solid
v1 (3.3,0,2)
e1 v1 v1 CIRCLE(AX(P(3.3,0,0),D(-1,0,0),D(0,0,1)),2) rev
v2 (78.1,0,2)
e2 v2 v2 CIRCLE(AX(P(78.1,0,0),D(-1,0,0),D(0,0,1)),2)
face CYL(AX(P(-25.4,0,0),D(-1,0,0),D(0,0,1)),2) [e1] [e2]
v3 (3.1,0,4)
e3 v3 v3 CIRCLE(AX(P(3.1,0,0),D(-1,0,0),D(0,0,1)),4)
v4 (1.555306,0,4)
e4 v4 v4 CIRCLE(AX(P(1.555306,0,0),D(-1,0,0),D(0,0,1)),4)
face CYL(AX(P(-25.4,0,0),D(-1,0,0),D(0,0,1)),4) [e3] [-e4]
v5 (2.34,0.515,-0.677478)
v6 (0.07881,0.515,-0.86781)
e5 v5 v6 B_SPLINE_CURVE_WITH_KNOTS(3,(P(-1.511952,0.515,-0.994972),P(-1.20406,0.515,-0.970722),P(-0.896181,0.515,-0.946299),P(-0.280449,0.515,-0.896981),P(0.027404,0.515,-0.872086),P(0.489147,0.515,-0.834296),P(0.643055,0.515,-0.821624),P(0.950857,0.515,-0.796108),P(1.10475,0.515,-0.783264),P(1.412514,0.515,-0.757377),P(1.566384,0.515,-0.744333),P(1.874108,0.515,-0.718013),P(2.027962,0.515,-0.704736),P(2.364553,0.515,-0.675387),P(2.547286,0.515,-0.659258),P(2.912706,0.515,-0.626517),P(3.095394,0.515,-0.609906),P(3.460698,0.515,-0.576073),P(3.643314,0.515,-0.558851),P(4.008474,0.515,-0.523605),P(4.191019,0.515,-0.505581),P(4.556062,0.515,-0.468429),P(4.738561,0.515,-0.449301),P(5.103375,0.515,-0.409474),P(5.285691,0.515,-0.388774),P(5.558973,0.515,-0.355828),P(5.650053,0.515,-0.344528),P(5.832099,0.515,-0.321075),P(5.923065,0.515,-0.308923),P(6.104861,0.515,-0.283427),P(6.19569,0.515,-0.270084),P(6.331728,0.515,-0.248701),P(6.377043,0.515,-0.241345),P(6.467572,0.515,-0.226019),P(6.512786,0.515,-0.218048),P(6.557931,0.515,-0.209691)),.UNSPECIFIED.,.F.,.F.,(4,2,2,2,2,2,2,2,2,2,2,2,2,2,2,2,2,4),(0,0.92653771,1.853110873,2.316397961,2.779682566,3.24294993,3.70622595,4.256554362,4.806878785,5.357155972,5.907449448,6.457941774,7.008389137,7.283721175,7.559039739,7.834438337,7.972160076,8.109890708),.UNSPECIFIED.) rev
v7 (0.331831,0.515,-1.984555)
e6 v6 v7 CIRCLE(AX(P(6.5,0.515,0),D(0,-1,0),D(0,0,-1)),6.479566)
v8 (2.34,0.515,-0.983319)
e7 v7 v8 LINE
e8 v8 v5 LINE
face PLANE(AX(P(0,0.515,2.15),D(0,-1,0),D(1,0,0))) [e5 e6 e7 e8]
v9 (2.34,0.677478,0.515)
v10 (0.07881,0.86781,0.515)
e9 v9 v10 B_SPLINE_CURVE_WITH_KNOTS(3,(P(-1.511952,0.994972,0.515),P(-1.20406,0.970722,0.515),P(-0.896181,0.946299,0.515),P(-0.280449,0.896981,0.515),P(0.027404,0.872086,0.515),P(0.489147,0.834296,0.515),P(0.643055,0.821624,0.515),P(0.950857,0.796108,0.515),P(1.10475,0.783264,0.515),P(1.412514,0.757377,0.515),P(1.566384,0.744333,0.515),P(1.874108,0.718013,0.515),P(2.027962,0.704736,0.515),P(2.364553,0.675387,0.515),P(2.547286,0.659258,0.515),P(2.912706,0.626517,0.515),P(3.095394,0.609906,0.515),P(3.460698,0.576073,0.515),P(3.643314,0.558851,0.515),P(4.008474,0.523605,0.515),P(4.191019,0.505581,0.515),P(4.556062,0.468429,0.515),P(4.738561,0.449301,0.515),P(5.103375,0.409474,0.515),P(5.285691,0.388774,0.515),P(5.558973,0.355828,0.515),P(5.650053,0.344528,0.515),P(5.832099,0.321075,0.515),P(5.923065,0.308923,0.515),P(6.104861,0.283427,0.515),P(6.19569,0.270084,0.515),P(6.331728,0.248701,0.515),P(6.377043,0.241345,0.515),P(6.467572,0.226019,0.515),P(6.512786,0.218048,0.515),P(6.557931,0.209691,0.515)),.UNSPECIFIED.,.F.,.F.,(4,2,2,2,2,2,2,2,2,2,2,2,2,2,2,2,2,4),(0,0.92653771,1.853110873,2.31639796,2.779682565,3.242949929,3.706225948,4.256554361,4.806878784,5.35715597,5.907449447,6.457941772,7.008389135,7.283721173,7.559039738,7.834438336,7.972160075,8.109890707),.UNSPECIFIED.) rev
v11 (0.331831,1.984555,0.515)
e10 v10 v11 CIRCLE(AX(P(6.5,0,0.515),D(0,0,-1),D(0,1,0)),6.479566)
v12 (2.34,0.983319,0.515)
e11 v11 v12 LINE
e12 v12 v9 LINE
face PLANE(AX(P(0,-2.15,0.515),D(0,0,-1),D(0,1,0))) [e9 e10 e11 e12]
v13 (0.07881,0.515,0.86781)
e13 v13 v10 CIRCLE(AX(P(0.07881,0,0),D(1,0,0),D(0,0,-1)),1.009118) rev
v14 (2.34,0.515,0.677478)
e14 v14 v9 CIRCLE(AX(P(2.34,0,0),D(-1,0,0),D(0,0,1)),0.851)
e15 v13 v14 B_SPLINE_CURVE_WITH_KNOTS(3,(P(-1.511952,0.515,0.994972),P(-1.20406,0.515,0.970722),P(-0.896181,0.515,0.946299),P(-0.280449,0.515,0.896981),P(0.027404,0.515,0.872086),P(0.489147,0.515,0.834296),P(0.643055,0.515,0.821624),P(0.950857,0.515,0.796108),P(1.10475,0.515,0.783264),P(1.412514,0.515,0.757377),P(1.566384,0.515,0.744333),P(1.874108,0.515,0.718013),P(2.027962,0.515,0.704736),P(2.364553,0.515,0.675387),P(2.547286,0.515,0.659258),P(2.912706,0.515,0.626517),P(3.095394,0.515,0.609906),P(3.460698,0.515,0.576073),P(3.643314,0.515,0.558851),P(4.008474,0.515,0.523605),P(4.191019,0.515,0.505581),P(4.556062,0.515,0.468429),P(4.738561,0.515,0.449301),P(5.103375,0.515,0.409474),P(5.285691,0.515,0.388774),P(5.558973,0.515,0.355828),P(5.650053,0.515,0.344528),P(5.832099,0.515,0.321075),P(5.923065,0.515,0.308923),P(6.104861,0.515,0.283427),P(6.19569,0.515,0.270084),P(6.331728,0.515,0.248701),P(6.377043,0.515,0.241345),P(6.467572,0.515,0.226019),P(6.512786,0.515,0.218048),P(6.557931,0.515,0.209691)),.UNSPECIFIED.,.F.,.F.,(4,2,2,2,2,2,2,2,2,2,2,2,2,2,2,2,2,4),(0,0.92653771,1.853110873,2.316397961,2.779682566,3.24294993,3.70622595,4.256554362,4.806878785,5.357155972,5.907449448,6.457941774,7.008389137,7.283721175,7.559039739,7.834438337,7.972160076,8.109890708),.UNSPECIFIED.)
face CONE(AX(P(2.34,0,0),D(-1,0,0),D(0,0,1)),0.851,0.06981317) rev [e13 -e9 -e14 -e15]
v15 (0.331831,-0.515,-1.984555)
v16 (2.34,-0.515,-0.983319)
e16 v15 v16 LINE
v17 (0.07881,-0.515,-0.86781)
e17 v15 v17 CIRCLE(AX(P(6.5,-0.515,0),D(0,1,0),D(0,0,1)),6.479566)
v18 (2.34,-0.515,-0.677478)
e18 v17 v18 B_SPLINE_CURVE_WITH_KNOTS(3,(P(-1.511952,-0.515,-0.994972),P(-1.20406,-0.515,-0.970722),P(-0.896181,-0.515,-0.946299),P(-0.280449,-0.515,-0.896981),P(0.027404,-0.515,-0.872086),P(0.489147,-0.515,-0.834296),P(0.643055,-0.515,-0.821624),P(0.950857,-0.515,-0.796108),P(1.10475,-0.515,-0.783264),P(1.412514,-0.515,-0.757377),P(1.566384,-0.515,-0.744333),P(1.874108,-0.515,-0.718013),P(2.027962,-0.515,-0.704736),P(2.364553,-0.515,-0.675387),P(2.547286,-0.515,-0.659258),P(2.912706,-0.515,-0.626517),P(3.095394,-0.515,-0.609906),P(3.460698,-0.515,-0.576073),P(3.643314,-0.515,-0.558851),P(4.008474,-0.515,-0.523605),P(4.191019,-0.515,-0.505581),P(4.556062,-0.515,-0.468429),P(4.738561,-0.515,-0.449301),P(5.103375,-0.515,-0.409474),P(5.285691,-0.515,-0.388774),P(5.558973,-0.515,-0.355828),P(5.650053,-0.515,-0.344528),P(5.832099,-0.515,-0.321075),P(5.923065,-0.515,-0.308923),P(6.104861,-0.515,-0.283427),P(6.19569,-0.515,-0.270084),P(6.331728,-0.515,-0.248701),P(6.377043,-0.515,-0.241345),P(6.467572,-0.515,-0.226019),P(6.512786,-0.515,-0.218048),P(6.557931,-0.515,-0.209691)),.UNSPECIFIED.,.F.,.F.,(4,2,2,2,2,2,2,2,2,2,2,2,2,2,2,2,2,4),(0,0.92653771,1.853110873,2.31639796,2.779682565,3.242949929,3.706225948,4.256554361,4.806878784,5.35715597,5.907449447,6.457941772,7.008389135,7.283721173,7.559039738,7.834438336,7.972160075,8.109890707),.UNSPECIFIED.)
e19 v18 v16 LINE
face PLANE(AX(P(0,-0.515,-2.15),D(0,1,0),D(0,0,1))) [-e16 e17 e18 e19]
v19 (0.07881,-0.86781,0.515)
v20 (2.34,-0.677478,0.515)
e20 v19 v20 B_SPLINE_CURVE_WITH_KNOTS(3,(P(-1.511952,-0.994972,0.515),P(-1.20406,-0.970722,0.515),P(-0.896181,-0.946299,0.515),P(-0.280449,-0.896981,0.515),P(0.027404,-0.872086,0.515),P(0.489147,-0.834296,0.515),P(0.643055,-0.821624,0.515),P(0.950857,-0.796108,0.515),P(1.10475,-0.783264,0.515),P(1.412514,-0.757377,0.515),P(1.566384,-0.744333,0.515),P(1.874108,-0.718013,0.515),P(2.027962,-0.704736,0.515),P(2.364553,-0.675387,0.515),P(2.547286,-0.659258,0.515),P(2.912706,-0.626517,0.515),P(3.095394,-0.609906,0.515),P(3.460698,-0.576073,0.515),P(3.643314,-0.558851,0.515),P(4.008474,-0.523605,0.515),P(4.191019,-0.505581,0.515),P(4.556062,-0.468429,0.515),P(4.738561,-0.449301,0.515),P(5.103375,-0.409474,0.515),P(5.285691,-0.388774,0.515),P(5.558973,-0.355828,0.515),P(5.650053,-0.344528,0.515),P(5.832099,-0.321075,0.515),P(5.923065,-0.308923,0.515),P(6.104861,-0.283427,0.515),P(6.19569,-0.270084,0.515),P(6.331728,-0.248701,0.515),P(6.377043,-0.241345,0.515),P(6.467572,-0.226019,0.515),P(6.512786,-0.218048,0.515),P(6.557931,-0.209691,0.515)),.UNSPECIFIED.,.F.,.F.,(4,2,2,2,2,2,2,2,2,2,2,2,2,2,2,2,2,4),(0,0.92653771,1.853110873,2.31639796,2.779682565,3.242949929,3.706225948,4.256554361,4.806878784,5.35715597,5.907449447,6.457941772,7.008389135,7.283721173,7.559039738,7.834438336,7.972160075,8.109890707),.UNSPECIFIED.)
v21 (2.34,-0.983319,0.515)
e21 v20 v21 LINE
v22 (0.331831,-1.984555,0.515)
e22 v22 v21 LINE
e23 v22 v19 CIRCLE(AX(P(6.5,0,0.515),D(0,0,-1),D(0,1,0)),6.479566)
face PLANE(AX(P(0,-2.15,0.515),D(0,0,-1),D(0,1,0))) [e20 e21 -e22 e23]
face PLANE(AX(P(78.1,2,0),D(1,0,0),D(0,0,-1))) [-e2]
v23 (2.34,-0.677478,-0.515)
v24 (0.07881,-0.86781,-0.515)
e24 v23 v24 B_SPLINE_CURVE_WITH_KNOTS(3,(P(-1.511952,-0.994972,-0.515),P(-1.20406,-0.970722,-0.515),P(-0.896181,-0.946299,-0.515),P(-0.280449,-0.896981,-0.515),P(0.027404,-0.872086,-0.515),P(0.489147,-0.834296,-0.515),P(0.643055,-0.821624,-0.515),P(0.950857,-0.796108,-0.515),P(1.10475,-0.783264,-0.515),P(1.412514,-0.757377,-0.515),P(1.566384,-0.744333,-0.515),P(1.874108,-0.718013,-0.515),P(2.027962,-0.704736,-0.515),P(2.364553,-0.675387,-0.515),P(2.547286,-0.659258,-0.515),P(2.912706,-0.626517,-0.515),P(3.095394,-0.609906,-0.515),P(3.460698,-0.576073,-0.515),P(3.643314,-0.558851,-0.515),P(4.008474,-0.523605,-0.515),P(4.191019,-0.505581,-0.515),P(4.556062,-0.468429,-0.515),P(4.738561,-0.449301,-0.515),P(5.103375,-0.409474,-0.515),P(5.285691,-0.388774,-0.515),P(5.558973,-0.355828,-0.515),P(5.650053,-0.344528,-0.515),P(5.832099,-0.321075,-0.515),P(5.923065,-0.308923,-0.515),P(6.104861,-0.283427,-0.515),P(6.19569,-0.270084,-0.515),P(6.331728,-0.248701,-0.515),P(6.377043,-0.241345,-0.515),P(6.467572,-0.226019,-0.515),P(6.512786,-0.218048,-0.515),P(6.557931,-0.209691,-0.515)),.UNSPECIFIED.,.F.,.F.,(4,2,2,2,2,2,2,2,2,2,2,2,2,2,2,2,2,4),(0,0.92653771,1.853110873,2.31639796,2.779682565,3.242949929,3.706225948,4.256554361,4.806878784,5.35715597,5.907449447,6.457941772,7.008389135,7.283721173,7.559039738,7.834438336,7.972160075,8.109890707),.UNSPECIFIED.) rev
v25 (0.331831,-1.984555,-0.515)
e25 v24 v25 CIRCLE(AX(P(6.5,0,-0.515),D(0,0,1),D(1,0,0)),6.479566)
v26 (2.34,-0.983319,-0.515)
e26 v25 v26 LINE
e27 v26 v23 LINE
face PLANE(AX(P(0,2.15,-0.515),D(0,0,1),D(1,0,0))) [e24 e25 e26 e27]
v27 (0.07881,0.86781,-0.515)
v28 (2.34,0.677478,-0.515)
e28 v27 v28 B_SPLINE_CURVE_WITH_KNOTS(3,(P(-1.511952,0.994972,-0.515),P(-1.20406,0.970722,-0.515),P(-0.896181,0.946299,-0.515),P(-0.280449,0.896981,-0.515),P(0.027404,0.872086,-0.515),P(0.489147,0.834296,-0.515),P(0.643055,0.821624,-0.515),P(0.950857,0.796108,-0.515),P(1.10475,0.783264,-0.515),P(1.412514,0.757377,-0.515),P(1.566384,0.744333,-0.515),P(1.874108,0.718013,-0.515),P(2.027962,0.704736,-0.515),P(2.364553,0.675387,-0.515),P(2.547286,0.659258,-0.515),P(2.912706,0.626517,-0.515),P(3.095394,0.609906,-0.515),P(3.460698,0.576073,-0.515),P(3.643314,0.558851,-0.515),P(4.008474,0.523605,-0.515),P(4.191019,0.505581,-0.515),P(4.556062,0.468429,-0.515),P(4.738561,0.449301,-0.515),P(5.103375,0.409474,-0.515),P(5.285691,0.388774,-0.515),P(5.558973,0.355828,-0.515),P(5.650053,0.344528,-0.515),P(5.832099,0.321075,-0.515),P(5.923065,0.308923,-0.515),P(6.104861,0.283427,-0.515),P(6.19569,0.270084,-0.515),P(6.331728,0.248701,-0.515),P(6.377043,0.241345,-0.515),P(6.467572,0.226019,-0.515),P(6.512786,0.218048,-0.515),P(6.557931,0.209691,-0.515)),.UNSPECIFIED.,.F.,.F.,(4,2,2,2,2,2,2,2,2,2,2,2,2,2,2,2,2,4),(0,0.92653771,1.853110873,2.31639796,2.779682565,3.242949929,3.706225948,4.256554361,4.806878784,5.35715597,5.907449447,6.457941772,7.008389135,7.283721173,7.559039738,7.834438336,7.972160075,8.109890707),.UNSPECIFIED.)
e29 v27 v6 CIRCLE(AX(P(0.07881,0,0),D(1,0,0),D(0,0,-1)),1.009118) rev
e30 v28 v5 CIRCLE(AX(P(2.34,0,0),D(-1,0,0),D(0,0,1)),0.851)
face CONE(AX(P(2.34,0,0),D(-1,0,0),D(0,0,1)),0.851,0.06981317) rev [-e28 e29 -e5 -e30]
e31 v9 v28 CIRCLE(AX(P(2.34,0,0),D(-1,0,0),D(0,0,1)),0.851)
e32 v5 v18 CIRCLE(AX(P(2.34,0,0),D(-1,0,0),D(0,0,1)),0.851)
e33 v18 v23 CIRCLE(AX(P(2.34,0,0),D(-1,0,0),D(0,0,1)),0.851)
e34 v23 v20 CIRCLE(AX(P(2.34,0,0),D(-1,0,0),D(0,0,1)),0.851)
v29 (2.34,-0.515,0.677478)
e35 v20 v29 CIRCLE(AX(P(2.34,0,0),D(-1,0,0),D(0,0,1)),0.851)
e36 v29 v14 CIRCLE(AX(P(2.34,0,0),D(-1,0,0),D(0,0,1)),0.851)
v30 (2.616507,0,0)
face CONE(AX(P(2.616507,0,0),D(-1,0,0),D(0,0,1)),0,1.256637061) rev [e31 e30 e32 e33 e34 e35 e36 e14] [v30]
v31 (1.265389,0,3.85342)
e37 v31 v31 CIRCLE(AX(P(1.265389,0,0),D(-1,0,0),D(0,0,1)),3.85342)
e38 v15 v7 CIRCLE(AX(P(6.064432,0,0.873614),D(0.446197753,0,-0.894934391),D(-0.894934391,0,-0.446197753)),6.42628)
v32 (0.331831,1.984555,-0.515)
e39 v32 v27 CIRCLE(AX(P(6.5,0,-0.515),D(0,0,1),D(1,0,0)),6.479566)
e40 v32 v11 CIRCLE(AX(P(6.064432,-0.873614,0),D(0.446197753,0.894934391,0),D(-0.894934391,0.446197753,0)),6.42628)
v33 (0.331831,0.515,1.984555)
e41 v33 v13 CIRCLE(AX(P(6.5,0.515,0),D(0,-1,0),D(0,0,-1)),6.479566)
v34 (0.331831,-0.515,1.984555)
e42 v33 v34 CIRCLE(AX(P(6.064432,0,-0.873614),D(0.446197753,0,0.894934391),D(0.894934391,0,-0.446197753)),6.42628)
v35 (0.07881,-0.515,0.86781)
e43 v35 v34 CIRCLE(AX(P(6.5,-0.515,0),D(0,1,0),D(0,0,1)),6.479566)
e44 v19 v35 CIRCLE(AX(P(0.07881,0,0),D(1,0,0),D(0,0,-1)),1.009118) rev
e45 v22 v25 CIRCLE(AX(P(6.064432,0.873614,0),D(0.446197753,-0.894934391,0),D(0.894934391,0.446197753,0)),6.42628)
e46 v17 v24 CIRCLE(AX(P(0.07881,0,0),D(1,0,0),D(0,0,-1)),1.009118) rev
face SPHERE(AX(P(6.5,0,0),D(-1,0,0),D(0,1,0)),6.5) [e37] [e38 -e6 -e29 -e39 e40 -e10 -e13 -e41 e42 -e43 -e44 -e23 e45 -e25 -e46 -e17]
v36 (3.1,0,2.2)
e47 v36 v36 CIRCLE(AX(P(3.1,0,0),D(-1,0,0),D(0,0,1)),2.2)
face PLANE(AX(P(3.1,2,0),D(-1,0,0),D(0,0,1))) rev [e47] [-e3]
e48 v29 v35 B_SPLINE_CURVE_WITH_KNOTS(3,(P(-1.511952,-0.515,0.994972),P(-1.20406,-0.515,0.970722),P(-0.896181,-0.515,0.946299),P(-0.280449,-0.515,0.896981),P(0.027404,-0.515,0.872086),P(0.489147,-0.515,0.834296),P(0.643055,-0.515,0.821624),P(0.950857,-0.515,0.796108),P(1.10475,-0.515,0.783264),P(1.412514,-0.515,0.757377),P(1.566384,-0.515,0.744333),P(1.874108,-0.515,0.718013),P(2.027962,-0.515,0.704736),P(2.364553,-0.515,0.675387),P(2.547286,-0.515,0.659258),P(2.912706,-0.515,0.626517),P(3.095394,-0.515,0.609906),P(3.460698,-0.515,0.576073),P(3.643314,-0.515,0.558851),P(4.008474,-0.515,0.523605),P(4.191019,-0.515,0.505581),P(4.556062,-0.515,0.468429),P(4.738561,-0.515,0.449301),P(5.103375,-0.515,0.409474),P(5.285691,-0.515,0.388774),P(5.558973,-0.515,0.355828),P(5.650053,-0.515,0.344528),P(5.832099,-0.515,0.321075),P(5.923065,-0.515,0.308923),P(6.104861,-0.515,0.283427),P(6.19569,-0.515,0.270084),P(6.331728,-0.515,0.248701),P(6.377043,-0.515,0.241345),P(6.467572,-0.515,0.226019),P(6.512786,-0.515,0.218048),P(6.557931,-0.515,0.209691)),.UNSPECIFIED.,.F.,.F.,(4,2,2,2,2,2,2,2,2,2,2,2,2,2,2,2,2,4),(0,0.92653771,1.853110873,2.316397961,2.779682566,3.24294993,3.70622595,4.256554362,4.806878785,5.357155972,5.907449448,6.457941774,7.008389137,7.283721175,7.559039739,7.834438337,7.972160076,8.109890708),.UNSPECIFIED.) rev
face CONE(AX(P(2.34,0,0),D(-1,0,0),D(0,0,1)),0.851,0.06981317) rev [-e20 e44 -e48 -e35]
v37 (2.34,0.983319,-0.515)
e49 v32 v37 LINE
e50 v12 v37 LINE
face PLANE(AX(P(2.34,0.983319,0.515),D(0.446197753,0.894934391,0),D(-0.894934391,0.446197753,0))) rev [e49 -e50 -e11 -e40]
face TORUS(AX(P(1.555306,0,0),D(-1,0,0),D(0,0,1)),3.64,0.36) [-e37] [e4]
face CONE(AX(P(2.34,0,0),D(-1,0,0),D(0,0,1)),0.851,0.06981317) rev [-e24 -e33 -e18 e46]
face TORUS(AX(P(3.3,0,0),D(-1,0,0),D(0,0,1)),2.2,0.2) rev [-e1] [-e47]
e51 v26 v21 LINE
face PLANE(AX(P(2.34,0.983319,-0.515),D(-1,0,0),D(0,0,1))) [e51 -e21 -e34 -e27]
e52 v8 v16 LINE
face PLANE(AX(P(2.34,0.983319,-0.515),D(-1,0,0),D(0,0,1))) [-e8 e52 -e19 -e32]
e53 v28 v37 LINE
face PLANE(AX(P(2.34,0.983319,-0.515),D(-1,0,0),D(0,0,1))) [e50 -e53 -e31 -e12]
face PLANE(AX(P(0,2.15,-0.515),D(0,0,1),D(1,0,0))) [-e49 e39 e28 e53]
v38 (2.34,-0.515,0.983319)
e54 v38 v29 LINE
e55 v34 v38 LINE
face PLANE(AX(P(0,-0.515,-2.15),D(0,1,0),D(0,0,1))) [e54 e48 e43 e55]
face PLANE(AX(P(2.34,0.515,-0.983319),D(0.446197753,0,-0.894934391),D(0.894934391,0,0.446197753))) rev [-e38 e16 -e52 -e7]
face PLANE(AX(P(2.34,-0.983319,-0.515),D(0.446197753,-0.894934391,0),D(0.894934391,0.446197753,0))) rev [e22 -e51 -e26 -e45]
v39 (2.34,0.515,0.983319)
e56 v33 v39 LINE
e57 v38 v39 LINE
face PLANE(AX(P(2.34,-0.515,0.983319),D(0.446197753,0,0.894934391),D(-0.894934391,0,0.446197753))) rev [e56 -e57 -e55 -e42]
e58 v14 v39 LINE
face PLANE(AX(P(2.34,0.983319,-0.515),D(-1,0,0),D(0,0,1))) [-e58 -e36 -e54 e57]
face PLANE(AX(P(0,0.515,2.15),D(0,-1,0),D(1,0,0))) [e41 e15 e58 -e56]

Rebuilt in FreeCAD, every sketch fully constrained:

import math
import FreeCAD as App
import Part
import Sketcher
from FreeCAD import Vector
Q = App.Units.Quantity


def edges_at(feature, points):
    """Names of the edges that pass closest to the given points."""
    edges = feature.Shape.Edges
    near = lambda p: min(range(len(edges)), key=lambda i: edges[i].distToShape(Part.Vertex(*p))[0])
    return sorted({f"Edge{near(p) + 1}" for p in points})


def add_polygon(sketch, points):
    """Adds a closed chain of lines whose ends are joined by coincident constraints."""
    first, n = sketch.GeometryCount, len(points)
    for a, b in zip(points, points[1:] + points[:1]):
        sketch.addGeometry(Part.LineSegment(App.Vector(*a, 0), App.Vector(*b, 0)), False)
    for i in range(n):
        sketch.addConstraint(Sketcher.Constraint("Coincident", first + i, 2, first + (i + 1) % n, 1))

doc = App.newDocument("Part")
body = doc.addObject("PartDesign::Body", "Body")

# Sketch on XY plane
sketch1 = body.newObject("Sketcher::SketchObject", "Sketch")
sketch1.AttachmentSupport = (doc.getObject("XY_Plane"), [""])
sketch1.MapMode = "FlatFace"
sketch1.addGeometry([
    Part.LineSegment(Vector(3.1, 2, 0), Vector(3.1, 4, 0)),  # 0
    Part.LineSegment(Vector(3.1, 4, 0), Vector(1.555306, 4, 0)),  # 1
    Part.ArcOfCircle(Part.Circle(Vector(1.555306, 3.64, 0), Vector(0, 0, 1), 0.36), math.radians(90), math.radians(143.641633)),  # 2
    Part.ArcOfCircle(Part.Circle(Vector(6.5, 0, 0), Vector(0, 0, 1), 6.5), math.radians(143.641632), math.radians(180)),  # 3
    Part.LineSegment(Vector(0, 0, 0), Vector(78.1, 0, 0)),  # 4
    Part.LineSegment(Vector(78.1, 0, 0), Vector(78.1, 2, 0)),  # 5
    Part.LineSegment(Vector(78.1, 2, 0), Vector(3.1, 2, 0)),  # 6
], False)
sketch1.addConstraint([
    Sketcher.Constraint("Coincident", 0, 2, 1, 1),
    Sketcher.Constraint("Tangent", 1, 2, 2, 1),
    Sketcher.Constraint("Tangent", 2, 2, 3, 1),
    Sketcher.Constraint("Coincident", 3, 2, 4, 1),
    Sketcher.Constraint("Coincident", 4, 2, 5, 1),
    Sketcher.Constraint("Coincident", 5, 2, 6, 1),
    Sketcher.Constraint("Coincident", 6, 2, 0, 1),
    Sketcher.Constraint("Vertical", 0),
    Sketcher.Constraint("Horizontal", 1),
    Sketcher.Constraint("Horizontal", 4),
    Sketcher.Constraint("Vertical", 5),
    Sketcher.Constraint("Horizontal", 6),
    Sketcher.Constraint("Coincident", 3, 2, -1, 1),
    Sketcher.Constraint("PointOnObject", 3, 3, -1),
    Sketcher.Constraint("Equal", 0, 5),
    Sketcher.Constraint("Radius", 3, 6.5),
    Sketcher.Constraint("DistanceX", 6, 2, 6, 1, 75.0),
    Sketcher.Constraint("DistanceY", 0, 1, 0, 2, 2.0),
    Sketcher.Constraint("Radius", 2, 0.36),
    Sketcher.Constraint("DistanceX", 4, 1, 4, 2, 78.1),
])
revolution = body.newObject("PartDesign::Revolution", "Revolution")
revolution.Profile = sketch1
revolution.ReferenceAxis = (sketch1, ["H_Axis"])
revolution.Angle = 360
doc.recompute()

fillet = body.newObject("PartDesign::Fillet", "Fillet")
fillet.Base = (revolution, edges_at(revolution, [(3.1, -2, 0)]))
fillet.Radius = 0.2

# Sketch on YZ plane
sketch2 = body.newObject("Sketcher::SketchObject", "Sketch001")
sketch2.AttachmentSupport = (doc.getObject("YZ_Plane"), [""])
sketch2.MapMode = "FlatFace"
add_polygon(sketch2, [(2.15, 0.515), (-2.15, 0.515), (-2.15, -0.515), (2.15, -0.515)])  # lines 0-3
sketch2.addConstraint([
    Sketcher.Constraint("Horizontal", 0),
    Sketcher.Constraint("Vertical", 1),
    Sketcher.Constraint("Horizontal", 2),
    Sketcher.Constraint("Vertical", 3),
    Sketcher.Constraint("Symmetric", 0, 2, 2, 2, -1, 1),
    Sketcher.Constraint("DistanceX", 0, 2, 0, 1, 4.3),
    Sketcher.Constraint("DistanceY", 1, 2, 1, 1, 1.03),
])

# Sketch on YZ plane
sketch3 = body.newObject("Sketcher::SketchObject", "Sketch002")
sketch3.AttachmentSupport = (doc.getObject("YZ_Plane"), [""])
sketch3.MapMode = "FlatFace"
sketch3.AttachmentOffset = App.Placement(Vector(0, 0, 2.34), App.Rotation())
add_polygon(sketch3, [(0.983319, 0.515), (-0.983319, 0.515), (-0.983319, -0.515), (0.983319, -0.515)])  # lines 0-3
sketch3.addConstraint([
    Sketcher.Constraint("Horizontal", 0),
    Sketcher.Constraint("Vertical", 1),
    Sketcher.Constraint("Horizontal", 2),
    Sketcher.Constraint("Vertical", 3),
    Sketcher.Constraint("Symmetric", 0, 2, 2, 2, -1, 1),
    Sketcher.Constraint("DistanceY", 1, 2, 1, 1, 1.03),
    Sketcher.Constraint("DistanceX", 0, 2, 0, 1, 1.966638),
])

subtractiveloft = body.newObject("PartDesign::SubtractiveLoft", "SubtractiveLoft")
subtractiveloft.Profile = sketch2
subtractiveloft.Sections = [sketch3]
doc.recompute()

polarpattern = body.newObject("PartDesign::PolarPattern", "PolarPattern")
polarpattern.Originals = [subtractiveloft]
polarpattern.Axis = (doc.getObject("X_Axis"), [""])
polarpattern.Angle = 90
polarpattern.Occurrences = 2
body.Tip = polarpattern

# Sketch on XY plane
sketch4 = body.newObject("Sketcher::SketchObject", "Sketch003")
sketch4.AttachmentSupport = (doc.getObject("XY_Plane"), [""])
sketch4.MapMode = "FlatFace"
add_polygon(sketch4, [(0, 1.014629), (0, 0), (2.616507, 0), (2.34, 0.851)])  # lines 0-3
sketch4.addConstraint([
    Sketcher.Constraint("Vertical", 0),
    Sketcher.Constraint("Horizontal", 1),
    Sketcher.Constraint("Coincident", 0, 2, -1, 1),
    Sketcher.Constraint("Angle", 2, Q("108 deg")),
    Sketcher.Constraint("Angle", 3, Q("176 deg")),
    Sketcher.Constraint("DistanceX", -1, 1, 2, 2, 2.34),
    Sketcher.Constraint("DistanceY", -1, 1, 2, 2, 0.851),
])
groove = body.newObject("PartDesign::Groove", "Groove")
groove.Profile = sketch4
groove.ReferenceAxis = (sketch4, ["H_Axis"])
groove.Angle = 360

doc.recompute()
